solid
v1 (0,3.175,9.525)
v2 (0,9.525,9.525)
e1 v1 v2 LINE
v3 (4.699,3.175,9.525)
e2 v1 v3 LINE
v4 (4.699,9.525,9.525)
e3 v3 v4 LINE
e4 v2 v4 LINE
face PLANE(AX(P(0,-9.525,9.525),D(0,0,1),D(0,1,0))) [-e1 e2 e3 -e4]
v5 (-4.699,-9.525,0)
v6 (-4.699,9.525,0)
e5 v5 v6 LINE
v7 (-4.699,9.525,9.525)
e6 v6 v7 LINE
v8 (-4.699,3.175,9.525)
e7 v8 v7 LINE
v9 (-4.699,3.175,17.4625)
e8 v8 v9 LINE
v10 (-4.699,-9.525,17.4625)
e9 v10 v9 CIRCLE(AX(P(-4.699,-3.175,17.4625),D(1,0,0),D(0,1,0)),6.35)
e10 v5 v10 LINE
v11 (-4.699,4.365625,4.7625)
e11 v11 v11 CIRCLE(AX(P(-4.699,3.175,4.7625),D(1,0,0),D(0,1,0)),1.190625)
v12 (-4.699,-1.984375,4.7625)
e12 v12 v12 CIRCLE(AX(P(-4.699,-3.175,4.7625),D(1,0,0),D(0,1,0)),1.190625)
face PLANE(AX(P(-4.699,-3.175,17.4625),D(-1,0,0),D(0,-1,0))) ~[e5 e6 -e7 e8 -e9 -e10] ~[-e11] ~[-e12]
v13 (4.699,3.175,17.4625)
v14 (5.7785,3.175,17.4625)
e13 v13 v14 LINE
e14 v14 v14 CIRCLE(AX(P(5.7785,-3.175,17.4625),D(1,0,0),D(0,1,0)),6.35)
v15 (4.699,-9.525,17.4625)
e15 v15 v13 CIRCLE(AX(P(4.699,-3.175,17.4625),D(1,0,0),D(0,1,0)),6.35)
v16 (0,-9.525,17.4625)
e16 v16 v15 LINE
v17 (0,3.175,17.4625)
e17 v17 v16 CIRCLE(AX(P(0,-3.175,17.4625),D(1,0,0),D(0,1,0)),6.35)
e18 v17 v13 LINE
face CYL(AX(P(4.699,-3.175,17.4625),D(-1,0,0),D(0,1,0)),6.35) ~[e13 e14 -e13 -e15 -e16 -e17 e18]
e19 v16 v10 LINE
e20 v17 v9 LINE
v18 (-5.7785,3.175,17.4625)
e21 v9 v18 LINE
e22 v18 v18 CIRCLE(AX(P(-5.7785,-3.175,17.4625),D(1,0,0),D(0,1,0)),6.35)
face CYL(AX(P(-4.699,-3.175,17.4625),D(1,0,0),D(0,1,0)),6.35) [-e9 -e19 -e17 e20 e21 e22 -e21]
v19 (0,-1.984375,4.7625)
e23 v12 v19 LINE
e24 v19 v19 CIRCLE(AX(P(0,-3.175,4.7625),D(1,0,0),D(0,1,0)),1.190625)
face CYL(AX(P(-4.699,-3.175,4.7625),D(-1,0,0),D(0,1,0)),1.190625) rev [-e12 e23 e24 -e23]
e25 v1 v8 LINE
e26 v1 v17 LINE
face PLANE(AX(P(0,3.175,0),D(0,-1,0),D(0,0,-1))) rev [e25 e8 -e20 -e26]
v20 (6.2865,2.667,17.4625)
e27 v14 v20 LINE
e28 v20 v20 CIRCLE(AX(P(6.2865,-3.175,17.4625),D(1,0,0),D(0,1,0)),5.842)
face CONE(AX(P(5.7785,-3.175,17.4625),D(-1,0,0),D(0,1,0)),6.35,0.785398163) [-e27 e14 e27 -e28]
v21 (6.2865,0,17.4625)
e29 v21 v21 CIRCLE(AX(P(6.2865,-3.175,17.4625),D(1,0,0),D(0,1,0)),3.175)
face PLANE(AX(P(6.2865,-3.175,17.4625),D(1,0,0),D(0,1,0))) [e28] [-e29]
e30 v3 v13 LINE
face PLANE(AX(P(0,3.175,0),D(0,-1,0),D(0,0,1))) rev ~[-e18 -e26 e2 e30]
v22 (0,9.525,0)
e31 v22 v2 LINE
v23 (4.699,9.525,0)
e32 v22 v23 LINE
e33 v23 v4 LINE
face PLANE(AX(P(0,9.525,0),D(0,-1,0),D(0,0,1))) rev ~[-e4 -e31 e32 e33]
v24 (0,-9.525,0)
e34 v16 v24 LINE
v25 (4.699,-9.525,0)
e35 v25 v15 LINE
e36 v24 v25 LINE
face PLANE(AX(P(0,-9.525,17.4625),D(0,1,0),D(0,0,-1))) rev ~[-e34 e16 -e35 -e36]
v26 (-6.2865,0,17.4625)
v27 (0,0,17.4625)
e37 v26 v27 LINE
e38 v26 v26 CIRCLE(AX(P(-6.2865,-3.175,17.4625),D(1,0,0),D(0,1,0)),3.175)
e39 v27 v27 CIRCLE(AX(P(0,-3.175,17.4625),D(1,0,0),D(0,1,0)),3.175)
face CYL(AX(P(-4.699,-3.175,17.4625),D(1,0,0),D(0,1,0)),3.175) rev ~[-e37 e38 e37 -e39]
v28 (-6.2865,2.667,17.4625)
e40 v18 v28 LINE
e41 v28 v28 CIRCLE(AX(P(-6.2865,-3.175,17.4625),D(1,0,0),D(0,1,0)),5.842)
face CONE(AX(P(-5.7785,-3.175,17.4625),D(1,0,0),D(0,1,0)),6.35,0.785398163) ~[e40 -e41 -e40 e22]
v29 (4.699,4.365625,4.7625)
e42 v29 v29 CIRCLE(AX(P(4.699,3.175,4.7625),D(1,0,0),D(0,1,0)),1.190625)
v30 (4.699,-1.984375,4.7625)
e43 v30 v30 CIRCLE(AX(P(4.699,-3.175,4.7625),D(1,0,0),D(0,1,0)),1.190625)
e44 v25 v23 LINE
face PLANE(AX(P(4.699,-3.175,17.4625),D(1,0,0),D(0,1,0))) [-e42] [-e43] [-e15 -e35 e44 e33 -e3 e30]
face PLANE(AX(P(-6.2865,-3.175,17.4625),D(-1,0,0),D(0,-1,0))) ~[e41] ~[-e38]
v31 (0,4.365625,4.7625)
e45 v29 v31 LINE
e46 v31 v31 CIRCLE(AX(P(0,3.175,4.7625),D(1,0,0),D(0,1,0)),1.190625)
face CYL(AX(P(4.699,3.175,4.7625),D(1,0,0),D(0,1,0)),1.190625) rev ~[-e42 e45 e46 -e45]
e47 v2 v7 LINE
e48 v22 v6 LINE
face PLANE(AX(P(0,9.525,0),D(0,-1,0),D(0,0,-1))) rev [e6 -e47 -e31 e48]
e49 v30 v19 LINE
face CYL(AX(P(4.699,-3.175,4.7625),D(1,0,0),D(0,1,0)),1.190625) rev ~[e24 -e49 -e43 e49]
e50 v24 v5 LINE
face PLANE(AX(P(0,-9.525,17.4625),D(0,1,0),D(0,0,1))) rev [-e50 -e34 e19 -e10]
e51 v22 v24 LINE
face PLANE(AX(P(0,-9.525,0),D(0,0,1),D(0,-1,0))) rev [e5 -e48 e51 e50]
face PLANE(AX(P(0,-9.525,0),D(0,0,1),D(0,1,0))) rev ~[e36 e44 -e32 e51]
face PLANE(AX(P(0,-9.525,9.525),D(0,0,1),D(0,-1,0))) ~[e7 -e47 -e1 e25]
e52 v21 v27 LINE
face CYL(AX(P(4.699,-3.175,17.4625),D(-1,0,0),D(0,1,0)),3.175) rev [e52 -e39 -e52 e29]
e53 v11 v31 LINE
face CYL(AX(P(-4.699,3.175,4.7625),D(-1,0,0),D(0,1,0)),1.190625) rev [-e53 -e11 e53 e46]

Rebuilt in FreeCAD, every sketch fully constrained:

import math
import FreeCAD as App
import Part
import Sketcher
from FreeCAD import Vector
Q = App.Units.Quantity


def edges_at(feature, points):
    """Names of the edges that pass closest to the given points."""
    edges = feature.Shape.Edges
    near = lambda p: min(range(len(edges)), key=lambda i: edges[i].distToShape(Part.Vertex(*p))[0])
    return sorted({f"Edge{near(p) + 1}" for p in points})


def add_polygon(sketch, points):
    """Adds a closed chain of lines whose ends are joined by coincident constraints."""
    first, n = sketch.GeometryCount, len(points)
    for a, b in zip(points, points[1:] + points[:1]):
        sketch.addGeometry(Part.LineSegment(App.Vector(*a, 0), App.Vector(*b, 0)), False)
    for i in range(n):
        sketch.addConstraint(Sketcher.Constraint("Coincident", first + i, 2, first + (i + 1) % n, 1))

doc = App.newDocument("Part")
params = doc.addObject("Spreadsheet::Sheet", "Params")
for row, (alias, value) in enumerate([
    ("sketch1_width", "0.75 in"),
    ("sketch1_height", "0.375 in"),
    ("pad1_length", "0.185 in"),
    ("sketch2_diameter", "0.25 in"),
    ("sketch2_radius", "0.25 in"),
    ("sketch2_height", "0.6875 in"),
    ("pad2_length", "0.185 in"),
    ("sketch3_diameter", "0.09375 in"),
    ("sketch4_diameter", "0.5 in"),
    ("sketch4_diameter2", "0.25 in"),
    ("pad3_length", "0.0625 in"),
    ("chamfer_size", "0.02 in"),
], start=1):
    params.set(f"A{row}", alias)
    params.set(f"B{row}", "=" + value)
    params.setAlias(f"B{row}", alias)

body = doc.addObject("PartDesign::Body", "Body")

# Sketch on YZ plane
sketch1 = doc.addObject("Sketcher::SketchObject", "Sketch")
body.addObject(sketch1)
sketch1.AttachmentSupport = (doc.YZ_Plane, [""])
sketch1.MapMode = "FlatFace"
add_polygon(sketch1, [(-10, 10), (-10, 0), (10, 0), (10, 10)])  # lines 0-3
sketch1.addConstraint([
    Sketcher.Constraint("Vertical", 0),
    Sketcher.Constraint("Horizontal", 1),
    Sketcher.Constraint("Vertical", 2),
    Sketcher.Constraint("Horizontal", 3),
    Sketcher.Constraint("Symmetric", 0, 2, 1, 2, -1, 1),
    Sketcher.Constraint("DistanceX", 1, 1, 1, 2, Q("0.75 in")),
    Sketcher.Constraint("DistanceY", 0, 2, 0, 1, Q("0.375 in")),
])
sketch1.setExpression("Constraints[9]", "Params.sketch1_width")
sketch1.setExpression("Constraints[10]", "Params.sketch1_height")
pad1 = doc.addObject("PartDesign::Pad", "Pad")
body.addObject(pad1)
pad1.Profile = sketch1
pad1.setExpression("Length", "Params.pad1_length")

# Sketch on YZ plane
sketch2 = doc.addObject("Sketcher::SketchObject", "Sketch001")
body.addObject(sketch2)
sketch2.AttachmentSupport = (doc.YZ_Plane, [""])
sketch2.MapMode = "FlatFace"
sketch2.addGeometry([
    Part.ArcOfCircle(Part.Circle(Vector(-3.2, 17.5, 0), Vector(0, 0, 1), 6.3), math.radians(0), math.radians(180)),  # 0
    Part.LineSegment(Vector(-9.5, 17.5, 0), Vector(-9.5, 0, 0)),  # 1
    Part.LineSegment(Vector(-9.5, 0, 0), Vector(3.2, 0, 0)),  # 2
    Part.LineSegment(Vector(3.2, 0, 0), Vector(3.2, 17.5, 0)),  # 3
    Part.Circle(Vector(-3.2, 17.5, 0), Vector(0, 0, 1), 3.2),  # 4
], False)
sketch2.addConstraint([
    Sketcher.Constraint("Tangent", 0, 2, 1, 1),
    Sketcher.Constraint("Coincident", 1, 2, 2, 1),
    Sketcher.Constraint("Coincident", 2, 2, 3, 1),
    Sketcher.Constraint("Tangent", 3, 2, 0, 1),
    Sketcher.Constraint("Vertical", 1),
    Sketcher.Constraint("Horizontal", 2),
    Sketcher.Constraint("Vertical", 3),
    Sketcher.Constraint("Coincident", 4, 3, 0, 3),
    Sketcher.Constraint("PointOnObject", 1, 2, -1),
    Sketcher.Constraint("Diameter", 4, Q("0.25 in")),
    Sketcher.Constraint("Radius", 0, Q("0.25 in")),
    Sketcher.Constraint("DistanceY", 1, 2, 1, 1, Q("0.6875 in")),
    Sketcher.Constraint("DistanceX", 0, 3, -1, 1, Q("0.125 in")),
])
sketch2.setExpression("Constraints[9]", "Params.sketch2_diameter")
sketch2.setExpression("Constraints[10]", "Params.sketch2_radius")
sketch2.setExpression("Constraints[11]", "Params.sketch2_height")
pad2 = doc.addObject("PartDesign::Pad", "Pad001")
body.addObject(pad2)
pad2.Profile = sketch2
pad2.setExpression("Length", "Params.pad2_length")

# Sketch on YZ plane
sketch3 = doc.addObject("Sketcher::SketchObject", "Sketch002")
body.addObject(sketch3)
sketch3.AttachmentSupport = (doc.YZ_Plane, [""])
sketch3.MapMode = "FlatFace"
sketch3.AttachmentOffset = App.Placement(Vector(0, 0, 0.185 * 25.4), App.Rotation())
sketch3.addGeometry([
    Part.Circle(Vector(-3.2, 4.8, 0), Vector(0, 0, 1), 1.2),
    Part.Circle(Vector(3.2, 4.8, 0), Vector(0, 0, 1), 1.2),
], False)
sketch3.addConstraint([
    Sketcher.Constraint("Equal", 0, 1),
    Sketcher.Constraint("Symmetric", 0, 3, 1, 3, -2),
    Sketcher.Constraint("Diameter", 0, Q("0.09375 in")),
    Sketcher.Constraint("DistanceX", 0, 3, 1, 3, Q("0.25 in")),
    Sketcher.Constraint("DistanceY", -1, 1, 0, 3, Q("0.1875 in")),
])
sketch3.setExpression("Constraints[2]", "Params.sketch3_diameter")
pocket1 = doc.addObject("PartDesign::Pocket", "Pocket")
body.addObject(pocket1)
pocket1.Profile = sketch3
pocket1.Type = "ThroughAll"

# Sketch on YZ plane
sketch4 = doc.addObject("Sketcher::SketchObject", "Sketch003")
body.addObject(sketch4)
sketch4.AttachmentSupport = (doc.YZ_Plane, [""])
sketch4.MapMode = "FlatFace"
sketch4.AttachmentOffset = App.Placement(Vector(0, 0, 0.185 * 25.4), App.Rotation())
sketch4.addGeometry([
    Part.Circle(Vector(-3.2, 17.5, 0), Vector(0, 0, 1), 6.3),
    Part.Circle(Vector(-3.2, 17.5, 0), Vector(0, 0, 1), 3.2),
], False)
sketch4.addConstraint([
    Sketcher.Constraint("Coincident", 1, 3, 0, 3),
    Sketcher.Constraint("Diameter", 0, Q("0.5 in")),
    Sketcher.Constraint("Diameter", 1, Q("0.25 in")),
    Sketcher.Constraint("DistanceX", 0, 3, -1, 1, Q("0.125 in")),
    Sketcher.Constraint("DistanceY", -1, 1, 0, 3, Q("0.6875 in")),
])
sketch4.setExpression("Constraints[1]", "Params.sketch4_diameter")
sketch4.setExpression("Constraints[2]", "Params.sketch4_diameter2")
pad3 = doc.addObject("PartDesign::Pad", "Pad002")
body.addObject(pad3)
pad3.Profile = sketch4
pad3.setExpression("Length", "Params.pad3_length")
body2 = doc.addObject("PartDesign::Body", "Body001")
doc.recompute()

body2.BaseFeature = body
doc.recompute()

mirroring = doc.addObject("Part::Mirroring", "Mirroring")
mirroring.Source = body
mirroring.Base = Vector(0, 0, 0)
mirroring.Normal = Vector(1, 0, 0)
body3 = doc.addObject("PartDesign::Body", "Body002")
body3.BaseFeature = mirroring
boolean = doc.addObject("PartDesign::Boolean", "Boolean")
body2.addObject(boolean)
boolean.Type = "Fuse"
boolean.addObjects([body3])
doc.recompute()

chamfer = doc.addObject("PartDesign::Chamfer", "Chamfer")
body2.addObject(chamfer)
chamfer.Base = (boolean, edges_at(boolean, [(6.287, -9.525, 17.462), (-6.287, -9.525, 17.462)]))
chamfer.setExpression("Size", "Params.chamfer_size")
mirroring.Visibility = False

doc.recompute()
